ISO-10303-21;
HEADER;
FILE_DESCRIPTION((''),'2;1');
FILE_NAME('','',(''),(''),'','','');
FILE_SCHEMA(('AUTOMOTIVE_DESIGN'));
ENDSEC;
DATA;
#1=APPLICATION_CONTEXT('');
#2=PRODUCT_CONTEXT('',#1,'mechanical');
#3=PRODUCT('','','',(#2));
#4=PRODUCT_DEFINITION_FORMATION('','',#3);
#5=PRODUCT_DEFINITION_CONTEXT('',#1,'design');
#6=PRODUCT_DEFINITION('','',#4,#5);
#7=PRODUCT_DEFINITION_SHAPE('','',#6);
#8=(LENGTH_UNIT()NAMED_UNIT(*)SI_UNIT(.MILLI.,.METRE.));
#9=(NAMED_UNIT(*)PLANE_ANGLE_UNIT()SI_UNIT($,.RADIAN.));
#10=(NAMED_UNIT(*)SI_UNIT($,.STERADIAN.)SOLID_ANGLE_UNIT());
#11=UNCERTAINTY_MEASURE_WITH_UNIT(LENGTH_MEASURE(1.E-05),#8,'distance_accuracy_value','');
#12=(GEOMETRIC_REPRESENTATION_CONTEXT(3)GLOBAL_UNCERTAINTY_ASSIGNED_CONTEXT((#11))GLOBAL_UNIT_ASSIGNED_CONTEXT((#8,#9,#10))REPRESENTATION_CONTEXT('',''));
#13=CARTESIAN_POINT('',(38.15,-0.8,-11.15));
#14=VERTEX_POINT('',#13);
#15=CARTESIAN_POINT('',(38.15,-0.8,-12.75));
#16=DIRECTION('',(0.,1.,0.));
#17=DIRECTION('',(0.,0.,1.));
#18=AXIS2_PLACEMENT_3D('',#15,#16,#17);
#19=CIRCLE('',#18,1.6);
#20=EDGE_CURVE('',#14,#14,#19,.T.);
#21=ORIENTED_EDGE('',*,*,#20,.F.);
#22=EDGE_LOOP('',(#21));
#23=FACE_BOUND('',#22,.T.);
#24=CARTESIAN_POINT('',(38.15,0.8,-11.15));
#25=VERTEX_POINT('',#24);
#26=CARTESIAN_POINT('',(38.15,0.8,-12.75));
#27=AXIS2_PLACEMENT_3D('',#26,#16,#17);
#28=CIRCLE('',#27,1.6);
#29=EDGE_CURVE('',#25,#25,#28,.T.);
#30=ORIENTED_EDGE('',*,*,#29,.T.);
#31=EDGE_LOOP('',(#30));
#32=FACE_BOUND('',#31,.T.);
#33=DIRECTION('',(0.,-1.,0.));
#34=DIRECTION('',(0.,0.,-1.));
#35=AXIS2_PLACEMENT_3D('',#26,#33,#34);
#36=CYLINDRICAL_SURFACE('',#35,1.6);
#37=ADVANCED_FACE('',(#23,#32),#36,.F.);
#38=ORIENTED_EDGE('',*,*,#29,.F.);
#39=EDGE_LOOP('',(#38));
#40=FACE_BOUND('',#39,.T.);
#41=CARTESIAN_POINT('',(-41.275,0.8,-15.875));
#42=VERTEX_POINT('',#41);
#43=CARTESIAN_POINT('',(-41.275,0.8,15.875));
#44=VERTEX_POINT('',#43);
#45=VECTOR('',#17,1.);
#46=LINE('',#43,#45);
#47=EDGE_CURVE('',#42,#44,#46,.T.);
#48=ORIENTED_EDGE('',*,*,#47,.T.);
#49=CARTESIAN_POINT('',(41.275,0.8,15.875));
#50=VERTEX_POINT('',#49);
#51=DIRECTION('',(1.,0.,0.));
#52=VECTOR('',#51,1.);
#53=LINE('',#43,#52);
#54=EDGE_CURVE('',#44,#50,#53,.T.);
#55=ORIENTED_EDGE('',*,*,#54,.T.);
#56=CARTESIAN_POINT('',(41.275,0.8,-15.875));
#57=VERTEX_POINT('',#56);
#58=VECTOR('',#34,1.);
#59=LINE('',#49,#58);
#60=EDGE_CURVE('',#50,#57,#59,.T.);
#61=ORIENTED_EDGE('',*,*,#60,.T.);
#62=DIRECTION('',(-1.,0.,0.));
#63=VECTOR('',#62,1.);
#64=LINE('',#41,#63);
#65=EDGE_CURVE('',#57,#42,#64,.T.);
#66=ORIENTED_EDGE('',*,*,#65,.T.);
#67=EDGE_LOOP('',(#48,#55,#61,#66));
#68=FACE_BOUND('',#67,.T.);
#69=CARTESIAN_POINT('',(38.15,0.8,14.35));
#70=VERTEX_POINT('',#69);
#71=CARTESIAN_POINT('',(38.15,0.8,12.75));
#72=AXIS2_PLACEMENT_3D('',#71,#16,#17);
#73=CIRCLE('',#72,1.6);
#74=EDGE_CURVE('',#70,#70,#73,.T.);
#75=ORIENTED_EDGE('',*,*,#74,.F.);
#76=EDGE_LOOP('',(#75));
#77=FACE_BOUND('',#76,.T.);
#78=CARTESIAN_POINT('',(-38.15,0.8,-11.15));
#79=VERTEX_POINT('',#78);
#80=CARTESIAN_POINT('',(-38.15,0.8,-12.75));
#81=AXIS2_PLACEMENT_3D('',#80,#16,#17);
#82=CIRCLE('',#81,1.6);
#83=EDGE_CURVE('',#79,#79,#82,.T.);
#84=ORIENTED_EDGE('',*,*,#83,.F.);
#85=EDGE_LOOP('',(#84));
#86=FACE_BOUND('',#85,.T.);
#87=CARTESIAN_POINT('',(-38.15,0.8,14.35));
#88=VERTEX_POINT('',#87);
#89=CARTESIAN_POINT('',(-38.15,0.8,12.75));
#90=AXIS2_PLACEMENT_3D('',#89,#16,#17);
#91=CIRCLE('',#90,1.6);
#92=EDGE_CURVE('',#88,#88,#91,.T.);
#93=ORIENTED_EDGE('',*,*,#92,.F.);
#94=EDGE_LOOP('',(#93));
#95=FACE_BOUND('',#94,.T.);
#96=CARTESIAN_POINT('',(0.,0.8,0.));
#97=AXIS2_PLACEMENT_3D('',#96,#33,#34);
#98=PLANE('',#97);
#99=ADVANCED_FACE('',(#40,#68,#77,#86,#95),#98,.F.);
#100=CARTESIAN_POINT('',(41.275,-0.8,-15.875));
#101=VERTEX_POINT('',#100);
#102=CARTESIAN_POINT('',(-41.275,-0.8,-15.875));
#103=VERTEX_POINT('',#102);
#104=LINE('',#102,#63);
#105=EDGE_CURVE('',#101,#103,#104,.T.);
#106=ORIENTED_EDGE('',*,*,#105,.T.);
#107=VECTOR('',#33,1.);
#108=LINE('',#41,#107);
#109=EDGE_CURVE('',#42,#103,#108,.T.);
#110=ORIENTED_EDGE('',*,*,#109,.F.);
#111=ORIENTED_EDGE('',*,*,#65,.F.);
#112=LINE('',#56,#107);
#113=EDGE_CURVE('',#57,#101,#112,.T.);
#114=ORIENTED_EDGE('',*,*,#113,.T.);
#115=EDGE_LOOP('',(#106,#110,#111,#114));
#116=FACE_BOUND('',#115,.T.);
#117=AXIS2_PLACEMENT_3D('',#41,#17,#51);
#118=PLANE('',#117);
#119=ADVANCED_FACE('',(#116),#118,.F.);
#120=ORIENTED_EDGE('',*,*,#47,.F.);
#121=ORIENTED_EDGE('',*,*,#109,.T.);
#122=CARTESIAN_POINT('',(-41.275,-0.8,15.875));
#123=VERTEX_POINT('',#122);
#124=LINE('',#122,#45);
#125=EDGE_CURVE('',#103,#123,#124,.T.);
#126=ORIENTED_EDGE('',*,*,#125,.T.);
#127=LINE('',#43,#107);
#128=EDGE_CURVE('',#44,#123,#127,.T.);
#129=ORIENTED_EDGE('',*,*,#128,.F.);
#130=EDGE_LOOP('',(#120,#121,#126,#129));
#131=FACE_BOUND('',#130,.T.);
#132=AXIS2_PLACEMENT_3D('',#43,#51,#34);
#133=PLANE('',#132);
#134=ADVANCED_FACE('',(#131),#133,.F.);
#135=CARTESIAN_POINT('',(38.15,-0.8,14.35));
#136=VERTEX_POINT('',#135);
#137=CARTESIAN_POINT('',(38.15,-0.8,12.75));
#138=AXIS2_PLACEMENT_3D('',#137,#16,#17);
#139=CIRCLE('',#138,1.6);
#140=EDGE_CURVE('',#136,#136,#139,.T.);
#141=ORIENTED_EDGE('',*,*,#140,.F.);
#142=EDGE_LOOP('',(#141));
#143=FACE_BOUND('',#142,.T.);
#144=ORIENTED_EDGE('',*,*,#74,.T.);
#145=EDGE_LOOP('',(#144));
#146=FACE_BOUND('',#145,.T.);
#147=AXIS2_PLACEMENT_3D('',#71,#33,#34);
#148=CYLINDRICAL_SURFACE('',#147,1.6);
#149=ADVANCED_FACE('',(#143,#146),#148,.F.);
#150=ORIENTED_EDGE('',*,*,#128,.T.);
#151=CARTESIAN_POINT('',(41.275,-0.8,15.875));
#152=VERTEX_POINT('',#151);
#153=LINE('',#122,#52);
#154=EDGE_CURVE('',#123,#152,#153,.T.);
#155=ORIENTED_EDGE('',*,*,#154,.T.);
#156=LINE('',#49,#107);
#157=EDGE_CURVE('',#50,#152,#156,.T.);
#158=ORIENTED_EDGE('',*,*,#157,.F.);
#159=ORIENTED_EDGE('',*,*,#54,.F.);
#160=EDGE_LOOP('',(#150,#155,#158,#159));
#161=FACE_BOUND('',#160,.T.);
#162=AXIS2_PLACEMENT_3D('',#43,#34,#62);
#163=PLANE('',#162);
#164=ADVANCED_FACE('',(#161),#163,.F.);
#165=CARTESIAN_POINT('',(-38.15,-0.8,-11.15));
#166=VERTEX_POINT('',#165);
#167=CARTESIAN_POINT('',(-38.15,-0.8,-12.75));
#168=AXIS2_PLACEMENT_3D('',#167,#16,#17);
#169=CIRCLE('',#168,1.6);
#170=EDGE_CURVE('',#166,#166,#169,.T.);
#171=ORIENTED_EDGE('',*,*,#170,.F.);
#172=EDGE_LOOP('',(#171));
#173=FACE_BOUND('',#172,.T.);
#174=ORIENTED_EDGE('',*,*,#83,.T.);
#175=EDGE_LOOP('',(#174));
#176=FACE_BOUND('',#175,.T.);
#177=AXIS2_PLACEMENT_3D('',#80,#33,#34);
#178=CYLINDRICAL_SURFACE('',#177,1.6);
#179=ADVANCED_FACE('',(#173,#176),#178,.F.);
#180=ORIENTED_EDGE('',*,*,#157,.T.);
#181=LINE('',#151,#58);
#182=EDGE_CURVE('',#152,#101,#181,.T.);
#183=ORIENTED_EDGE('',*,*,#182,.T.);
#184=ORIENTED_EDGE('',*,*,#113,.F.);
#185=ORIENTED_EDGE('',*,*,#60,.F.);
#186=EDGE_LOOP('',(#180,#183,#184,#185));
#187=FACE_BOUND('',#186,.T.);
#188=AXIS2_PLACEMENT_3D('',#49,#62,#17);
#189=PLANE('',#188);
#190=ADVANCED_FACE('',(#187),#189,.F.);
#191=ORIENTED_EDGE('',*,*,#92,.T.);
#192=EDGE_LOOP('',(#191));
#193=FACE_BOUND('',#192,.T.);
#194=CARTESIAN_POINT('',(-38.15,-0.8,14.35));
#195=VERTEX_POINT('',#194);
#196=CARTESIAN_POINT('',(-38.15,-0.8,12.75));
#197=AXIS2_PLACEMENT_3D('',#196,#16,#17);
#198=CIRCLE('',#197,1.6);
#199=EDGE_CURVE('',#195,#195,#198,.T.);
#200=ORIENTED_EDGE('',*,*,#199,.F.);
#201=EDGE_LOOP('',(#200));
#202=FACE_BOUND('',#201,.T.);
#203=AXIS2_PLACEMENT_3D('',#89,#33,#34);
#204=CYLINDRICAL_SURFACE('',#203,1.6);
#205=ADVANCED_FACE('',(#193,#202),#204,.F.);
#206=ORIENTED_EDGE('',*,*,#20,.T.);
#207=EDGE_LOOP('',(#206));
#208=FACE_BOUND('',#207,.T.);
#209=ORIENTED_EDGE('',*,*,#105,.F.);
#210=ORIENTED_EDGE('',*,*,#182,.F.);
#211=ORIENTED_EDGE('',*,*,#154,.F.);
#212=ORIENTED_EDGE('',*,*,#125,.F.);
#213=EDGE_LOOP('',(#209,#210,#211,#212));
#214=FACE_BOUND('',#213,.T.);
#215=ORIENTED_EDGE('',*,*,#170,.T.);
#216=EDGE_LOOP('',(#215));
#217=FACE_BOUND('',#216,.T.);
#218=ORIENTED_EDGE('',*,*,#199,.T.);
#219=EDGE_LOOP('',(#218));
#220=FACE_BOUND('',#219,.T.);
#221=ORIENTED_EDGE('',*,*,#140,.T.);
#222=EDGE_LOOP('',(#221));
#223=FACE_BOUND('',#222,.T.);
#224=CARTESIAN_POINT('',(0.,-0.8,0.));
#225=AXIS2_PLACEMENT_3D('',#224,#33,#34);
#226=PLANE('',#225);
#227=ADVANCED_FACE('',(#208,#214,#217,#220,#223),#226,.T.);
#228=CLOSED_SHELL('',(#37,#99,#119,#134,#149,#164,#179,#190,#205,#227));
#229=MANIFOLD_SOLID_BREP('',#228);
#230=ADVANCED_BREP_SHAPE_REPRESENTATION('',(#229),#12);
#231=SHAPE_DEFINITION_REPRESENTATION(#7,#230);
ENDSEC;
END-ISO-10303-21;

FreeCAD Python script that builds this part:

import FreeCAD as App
import Part
import Sketcher
from FreeCAD import Vector
Q = App.Units.Quantity


def add_polygon(sketch, points):
    """Adds a closed chain of lines whose ends are joined by coincident constraints."""
    first, n = sketch.GeometryCount, len(points)
    for a, b in zip(points, points[1:] + points[:1]):
        sketch.addGeometry(Part.LineSegment(App.Vector(*a, 0), App.Vector(*b, 0)), False)
    for i in range(n):
        sketch.addConstraint(Sketcher.Constraint("Coincident", first + i, 2, first + (i + 1) % n, 1))

doc = App.newDocument("Part")
body = doc.addObject("PartDesign::Body", "Body")

sketch1 = body.newObject("Sketcher::SketchObject", "Sketch")
sketch1.AttachmentSupport = (doc.getObject("XZ_Plane"), [""])
sketch1.MapMode = "FlatFace"
add_polygon(sketch1, [(-41.275, -15.875), (-41.275, 15.875), (41.275, 15.875), (41.275, -15.875)])
sketch1.addGeometry(Part.Circle(Vector(-38.15, 12.75, 0), Vector(0, 0, 1), 1.6), False)
sketch1.addGeometry(Part.Circle(Vector(38.15, 12.75, 0), Vector(0, 0, 1), 1.6), False)
sketch1.addGeometry(Part.Circle(Vector(-38.15, -12.75, 0), Vector(0, 0, 1), 1.6), False)
sketch1.addGeometry(Part.Circle(Vector(38.15, -12.75, 0), Vector(0, 0, 1), 1.6), False)
sketch1.addConstraint([
    Sketcher.Constraint("Vertical", 0),
    Sketcher.Constraint("Horizontal", 1),
    Sketcher.Constraint("Vertical", 2),
    Sketcher.Constraint("Horizontal", 3),
    Sketcher.Constraint("Equal", 4, 5),
    Sketcher.Constraint("Equal", 5, 6),
    Sketcher.Constraint("Equal", 6, 7),
    Sketcher.Constraint("Symmetric", 5, 3, 6, 3, -1, 1),
    Sketcher.Constraint("Symmetric", 4, 3, 7, 3, -1, 1),
    Sketcher.Constraint("Symmetric", 0, 2, 2, 2, -1, 1),
    Sketcher.Constraint("Symmetric", 4, 3, 5, 3, -2),
    Sketcher.Constraint("Diameter", 4, Q("3.2 mm")),
    Sketcher.Constraint("DistanceX", 1, 1, 1, 2, Q("82.55 mm")),
    Sketcher.Constraint("DistanceY", 0, 1, 0, 2, Q("31.75 mm")),
    Sketcher.Constraint("DistanceX", 4, 3, 5, 3, Q("76.3 mm")),
    Sketcher.Constraint("DistanceY", 6, 3, 4, 3, Q("25.5 mm")),
])
pad1 = body.newObject("PartDesign::Pad", "Pad")
pad1.Profile = sketch1
pad1.Length = 1.6
pad1.Midplane = True

doc.recompute()
